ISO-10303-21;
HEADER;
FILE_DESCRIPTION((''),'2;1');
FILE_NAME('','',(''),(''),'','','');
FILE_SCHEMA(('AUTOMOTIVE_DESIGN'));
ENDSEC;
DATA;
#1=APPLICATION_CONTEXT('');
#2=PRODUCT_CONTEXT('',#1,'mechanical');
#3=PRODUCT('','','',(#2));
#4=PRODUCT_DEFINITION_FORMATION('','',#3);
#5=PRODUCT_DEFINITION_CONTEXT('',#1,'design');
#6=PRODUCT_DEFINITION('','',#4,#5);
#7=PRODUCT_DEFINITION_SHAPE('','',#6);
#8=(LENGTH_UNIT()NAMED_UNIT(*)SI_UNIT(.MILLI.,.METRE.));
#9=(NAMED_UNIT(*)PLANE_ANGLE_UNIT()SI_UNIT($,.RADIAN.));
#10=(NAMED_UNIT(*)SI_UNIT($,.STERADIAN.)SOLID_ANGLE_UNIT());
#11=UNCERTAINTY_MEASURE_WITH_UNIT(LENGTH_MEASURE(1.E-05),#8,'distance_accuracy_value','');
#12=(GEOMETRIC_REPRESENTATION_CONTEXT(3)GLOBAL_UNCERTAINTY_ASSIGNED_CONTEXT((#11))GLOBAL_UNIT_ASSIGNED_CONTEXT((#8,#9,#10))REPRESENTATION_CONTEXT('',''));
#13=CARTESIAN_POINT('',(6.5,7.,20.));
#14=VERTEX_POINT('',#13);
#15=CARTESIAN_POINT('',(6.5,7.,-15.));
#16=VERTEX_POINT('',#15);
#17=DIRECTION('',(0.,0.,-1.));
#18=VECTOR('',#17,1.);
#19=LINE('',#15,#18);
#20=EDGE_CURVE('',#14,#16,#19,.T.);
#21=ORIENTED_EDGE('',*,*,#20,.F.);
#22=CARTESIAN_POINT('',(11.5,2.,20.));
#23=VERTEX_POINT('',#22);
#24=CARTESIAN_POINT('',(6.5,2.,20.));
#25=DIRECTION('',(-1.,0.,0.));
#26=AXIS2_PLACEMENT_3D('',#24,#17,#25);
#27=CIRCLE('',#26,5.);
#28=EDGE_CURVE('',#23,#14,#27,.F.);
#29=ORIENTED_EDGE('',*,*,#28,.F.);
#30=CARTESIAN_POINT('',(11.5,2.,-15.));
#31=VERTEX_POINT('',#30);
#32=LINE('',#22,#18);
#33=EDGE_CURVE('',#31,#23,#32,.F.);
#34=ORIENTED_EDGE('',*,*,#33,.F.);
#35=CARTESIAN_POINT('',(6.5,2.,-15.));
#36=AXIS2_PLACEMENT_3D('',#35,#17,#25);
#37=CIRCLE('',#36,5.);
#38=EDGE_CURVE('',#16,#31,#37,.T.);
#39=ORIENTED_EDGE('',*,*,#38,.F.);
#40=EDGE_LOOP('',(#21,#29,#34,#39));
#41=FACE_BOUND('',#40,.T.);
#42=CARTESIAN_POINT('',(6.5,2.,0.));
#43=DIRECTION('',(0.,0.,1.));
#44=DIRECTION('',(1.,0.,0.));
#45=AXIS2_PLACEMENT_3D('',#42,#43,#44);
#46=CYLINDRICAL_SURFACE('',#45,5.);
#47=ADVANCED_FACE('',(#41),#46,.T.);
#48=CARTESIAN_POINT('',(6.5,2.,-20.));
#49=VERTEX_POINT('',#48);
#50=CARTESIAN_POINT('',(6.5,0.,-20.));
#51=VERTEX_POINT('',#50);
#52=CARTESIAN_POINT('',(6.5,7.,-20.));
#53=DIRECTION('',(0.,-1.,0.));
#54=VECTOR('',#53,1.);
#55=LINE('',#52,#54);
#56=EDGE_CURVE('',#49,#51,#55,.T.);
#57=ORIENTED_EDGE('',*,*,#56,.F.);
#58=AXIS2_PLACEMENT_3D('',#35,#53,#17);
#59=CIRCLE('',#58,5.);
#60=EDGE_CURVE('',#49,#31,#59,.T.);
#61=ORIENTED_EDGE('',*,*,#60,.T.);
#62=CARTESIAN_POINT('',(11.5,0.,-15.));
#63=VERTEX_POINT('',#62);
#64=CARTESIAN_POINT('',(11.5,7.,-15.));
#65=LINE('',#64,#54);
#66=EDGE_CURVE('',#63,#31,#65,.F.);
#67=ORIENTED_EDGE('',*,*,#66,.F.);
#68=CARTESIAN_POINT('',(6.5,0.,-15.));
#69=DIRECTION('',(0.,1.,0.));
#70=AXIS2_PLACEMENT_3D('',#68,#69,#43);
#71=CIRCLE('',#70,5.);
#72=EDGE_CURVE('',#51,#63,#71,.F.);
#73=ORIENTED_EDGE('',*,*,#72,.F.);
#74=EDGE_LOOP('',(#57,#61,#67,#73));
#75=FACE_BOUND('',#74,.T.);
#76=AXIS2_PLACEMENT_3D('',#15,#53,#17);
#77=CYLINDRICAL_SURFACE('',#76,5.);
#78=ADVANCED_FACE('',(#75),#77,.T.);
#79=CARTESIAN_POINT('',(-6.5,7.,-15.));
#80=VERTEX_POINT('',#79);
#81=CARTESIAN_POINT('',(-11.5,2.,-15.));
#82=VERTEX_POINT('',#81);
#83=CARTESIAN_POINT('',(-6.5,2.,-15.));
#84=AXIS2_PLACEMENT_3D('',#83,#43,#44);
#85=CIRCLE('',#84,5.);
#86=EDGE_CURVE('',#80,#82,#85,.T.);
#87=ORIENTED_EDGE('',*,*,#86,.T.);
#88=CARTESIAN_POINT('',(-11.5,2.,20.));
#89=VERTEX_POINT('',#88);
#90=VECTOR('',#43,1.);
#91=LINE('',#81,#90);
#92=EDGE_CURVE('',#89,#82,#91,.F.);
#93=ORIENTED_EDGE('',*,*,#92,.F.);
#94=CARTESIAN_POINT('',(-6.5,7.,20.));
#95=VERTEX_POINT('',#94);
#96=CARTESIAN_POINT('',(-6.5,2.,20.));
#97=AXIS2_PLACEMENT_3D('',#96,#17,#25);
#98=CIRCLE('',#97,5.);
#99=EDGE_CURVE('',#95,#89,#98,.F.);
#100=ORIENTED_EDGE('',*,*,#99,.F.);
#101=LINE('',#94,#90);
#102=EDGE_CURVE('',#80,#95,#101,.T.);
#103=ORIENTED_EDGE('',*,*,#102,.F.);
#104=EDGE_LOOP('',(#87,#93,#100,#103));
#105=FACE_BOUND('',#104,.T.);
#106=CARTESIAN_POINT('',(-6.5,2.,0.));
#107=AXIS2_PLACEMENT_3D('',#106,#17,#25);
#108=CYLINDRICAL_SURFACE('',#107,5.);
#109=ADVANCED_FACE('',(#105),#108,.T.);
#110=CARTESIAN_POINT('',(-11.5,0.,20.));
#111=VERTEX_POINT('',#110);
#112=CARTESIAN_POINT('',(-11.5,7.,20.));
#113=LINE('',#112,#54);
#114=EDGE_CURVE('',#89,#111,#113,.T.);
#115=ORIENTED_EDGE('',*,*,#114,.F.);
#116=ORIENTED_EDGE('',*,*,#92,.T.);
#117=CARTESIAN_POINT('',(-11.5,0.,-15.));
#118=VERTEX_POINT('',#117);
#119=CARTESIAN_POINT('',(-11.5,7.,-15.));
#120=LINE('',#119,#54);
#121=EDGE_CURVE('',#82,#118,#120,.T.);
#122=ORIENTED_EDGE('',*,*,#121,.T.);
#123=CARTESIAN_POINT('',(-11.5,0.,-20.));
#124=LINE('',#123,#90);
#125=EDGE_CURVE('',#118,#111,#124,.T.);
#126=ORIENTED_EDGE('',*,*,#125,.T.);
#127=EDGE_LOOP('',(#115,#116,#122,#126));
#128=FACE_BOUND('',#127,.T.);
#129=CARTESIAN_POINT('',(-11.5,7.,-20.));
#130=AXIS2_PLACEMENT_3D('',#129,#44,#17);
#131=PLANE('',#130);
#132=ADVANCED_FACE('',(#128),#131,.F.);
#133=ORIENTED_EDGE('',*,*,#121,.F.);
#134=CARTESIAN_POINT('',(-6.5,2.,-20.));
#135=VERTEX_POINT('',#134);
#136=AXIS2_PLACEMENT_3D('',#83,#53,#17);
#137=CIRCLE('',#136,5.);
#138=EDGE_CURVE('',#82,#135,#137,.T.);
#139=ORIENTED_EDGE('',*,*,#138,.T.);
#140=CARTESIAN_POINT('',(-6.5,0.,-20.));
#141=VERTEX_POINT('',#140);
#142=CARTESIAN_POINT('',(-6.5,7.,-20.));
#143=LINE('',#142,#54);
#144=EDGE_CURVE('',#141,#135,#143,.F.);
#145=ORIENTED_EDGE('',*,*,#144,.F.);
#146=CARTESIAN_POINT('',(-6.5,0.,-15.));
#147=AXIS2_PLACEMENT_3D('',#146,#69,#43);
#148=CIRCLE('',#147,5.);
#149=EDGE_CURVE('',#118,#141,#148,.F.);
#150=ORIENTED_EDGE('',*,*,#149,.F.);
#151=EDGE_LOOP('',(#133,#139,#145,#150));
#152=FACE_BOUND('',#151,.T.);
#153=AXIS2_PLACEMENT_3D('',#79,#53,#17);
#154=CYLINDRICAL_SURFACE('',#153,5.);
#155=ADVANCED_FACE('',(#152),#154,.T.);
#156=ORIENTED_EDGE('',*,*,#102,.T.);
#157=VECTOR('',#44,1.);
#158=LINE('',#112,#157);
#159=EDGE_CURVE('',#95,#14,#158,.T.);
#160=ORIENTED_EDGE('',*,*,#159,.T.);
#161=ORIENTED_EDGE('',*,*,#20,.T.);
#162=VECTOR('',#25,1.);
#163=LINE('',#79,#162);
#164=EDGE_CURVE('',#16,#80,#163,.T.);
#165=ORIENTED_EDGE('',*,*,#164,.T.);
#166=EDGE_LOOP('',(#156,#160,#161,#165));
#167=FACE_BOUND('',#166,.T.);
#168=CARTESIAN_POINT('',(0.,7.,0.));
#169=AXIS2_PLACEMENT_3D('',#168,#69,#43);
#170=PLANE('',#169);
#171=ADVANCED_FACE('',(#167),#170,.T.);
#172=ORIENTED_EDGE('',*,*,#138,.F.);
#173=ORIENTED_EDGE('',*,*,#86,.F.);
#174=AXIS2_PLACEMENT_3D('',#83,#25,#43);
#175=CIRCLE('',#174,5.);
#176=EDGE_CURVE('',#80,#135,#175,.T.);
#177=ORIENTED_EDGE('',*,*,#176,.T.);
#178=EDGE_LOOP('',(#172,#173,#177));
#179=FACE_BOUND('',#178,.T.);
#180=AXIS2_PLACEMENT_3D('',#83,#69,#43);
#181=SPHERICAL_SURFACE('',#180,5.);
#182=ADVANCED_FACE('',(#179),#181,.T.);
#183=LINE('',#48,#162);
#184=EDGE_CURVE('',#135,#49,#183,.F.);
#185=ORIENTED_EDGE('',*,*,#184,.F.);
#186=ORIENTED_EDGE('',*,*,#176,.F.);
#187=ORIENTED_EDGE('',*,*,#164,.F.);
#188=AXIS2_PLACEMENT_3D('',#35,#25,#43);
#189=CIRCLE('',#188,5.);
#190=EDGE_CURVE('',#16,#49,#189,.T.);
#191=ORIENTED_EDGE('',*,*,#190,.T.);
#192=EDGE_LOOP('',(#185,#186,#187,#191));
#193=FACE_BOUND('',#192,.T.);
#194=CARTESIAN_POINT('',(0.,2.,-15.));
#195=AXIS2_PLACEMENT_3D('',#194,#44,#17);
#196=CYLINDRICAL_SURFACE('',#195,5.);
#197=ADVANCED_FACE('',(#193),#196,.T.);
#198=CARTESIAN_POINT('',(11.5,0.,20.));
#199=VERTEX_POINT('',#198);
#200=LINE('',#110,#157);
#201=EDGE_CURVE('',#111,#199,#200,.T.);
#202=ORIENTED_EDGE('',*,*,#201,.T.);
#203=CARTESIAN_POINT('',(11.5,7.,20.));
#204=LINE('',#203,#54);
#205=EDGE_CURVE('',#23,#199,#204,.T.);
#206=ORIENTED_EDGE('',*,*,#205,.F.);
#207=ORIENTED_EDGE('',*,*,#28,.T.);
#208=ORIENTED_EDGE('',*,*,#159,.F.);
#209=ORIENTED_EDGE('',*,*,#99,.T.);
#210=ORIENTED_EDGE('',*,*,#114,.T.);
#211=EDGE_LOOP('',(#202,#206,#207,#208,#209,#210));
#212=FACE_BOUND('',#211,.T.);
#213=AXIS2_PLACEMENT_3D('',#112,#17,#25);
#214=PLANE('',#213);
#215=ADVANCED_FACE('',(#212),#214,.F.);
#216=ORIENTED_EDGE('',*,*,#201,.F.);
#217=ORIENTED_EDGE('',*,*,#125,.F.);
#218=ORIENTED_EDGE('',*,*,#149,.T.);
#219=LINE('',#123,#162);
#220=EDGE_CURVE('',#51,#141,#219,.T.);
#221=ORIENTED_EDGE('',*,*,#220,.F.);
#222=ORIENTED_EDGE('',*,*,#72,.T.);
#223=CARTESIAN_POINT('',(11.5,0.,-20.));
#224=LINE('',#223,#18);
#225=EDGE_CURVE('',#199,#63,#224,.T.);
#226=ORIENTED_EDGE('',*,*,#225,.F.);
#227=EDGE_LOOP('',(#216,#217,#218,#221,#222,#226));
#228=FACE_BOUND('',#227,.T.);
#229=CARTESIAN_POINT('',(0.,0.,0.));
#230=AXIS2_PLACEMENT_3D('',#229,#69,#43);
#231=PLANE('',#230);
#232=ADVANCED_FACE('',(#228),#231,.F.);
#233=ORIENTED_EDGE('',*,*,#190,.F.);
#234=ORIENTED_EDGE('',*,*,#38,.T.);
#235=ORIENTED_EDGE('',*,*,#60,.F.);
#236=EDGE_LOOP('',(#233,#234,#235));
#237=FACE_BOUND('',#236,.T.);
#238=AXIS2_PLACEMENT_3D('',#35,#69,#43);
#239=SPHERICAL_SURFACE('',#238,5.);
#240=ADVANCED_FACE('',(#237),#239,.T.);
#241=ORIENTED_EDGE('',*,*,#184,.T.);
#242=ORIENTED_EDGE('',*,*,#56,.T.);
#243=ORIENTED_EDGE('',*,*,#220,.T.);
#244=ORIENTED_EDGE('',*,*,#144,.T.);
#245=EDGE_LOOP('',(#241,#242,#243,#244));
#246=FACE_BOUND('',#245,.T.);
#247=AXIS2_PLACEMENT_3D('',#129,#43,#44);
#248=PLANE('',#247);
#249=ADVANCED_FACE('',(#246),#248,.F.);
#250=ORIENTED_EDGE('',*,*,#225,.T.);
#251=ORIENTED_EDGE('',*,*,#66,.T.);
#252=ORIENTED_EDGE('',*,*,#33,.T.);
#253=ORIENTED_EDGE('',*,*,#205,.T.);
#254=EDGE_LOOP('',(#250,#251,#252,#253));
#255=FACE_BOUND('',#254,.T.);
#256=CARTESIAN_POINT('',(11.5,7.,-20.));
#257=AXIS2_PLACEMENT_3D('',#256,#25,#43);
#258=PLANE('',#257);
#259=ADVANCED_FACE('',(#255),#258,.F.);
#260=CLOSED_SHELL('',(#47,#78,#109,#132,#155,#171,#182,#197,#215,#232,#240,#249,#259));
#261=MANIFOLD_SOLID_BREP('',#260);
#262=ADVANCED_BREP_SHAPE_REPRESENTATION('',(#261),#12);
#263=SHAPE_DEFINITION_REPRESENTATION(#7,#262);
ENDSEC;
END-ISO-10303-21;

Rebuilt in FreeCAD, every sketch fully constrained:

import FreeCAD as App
import Part
import Sketcher

V = App.Vector


def edges_at(feature, points):
    """Names of the edges that pass closest to the given points."""
    edges = feature.Shape.Edges
    near = lambda p: min(range(len(edges)), key=lambda i: edges[i].distToShape(Part.Vertex(*p))[0])
    return sorted({f"Edge{near(p) + 1}" for p in points})

doc = App.newDocument("Part")
params = doc.addObject("Spreadsheet::Sheet", "Params")
for row, (alias, value) in enumerate([
    ("sketch1_width", "23 mm"),
    ("sketch1_height", "40 mm"),
    ("pad1_length", "7 mm"),
    ("fillet_radius", "5 mm"),
    ("fillet2_radius", "5 mm"),
    ("fillet3_radius", "5 mm"),
], start=1):
    params.set(f"A{row}", alias)
    params.set(f"B{row}", "=" + value)
    params.setAlias(f"B{row}", alias)

body = doc.addObject("PartDesign::Body", "Body")

sketch1 = doc.addObject("Sketcher::SketchObject", "Sketch")
body.addObject(sketch1)
sketch1.AttachmentSupport = (doc.XZ_Plane, [""])
sketch1.MapMode = "FlatFace"
sketch1.addGeometry(Part.LineSegment(V(-11.5, -20, 0), V(-11.5, 20, 0)), False)
sketch1.addGeometry(Part.LineSegment(V(-11.5, 20, 0), V(11.5, 20, 0)), False)
sketch1.addGeometry(Part.LineSegment(V(11.5, 20, 0), V(11.5, -20, 0)), False)
sketch1.addGeometry(Part.LineSegment(V(11.5, -20, 0), V(-11.5, -20, 0)), False)
sketch1.addConstraint(Sketcher.Constraint("Coincident", 0, 2, 1, 1))
sketch1.addConstraint(Sketcher.Constraint("Coincident", 1, 2, 2, 1))
sketch1.addConstraint(Sketcher.Constraint("Coincident", 2, 2, 3, 1))
sketch1.addConstraint(Sketcher.Constraint("Coincident", 3, 2, 0, 1))
sketch1.addConstraint(Sketcher.Constraint("Vertical", 0))
sketch1.addConstraint(Sketcher.Constraint("Horizontal", 1))
sketch1.addConstraint(Sketcher.Constraint("Vertical", 2))
sketch1.addConstraint(Sketcher.Constraint("Horizontal", 3))
sketch1.addConstraint(Sketcher.Constraint("Symmetric", 0, 2, 2, 2, -1, 1))
sketch1.addConstraint(Sketcher.Constraint("DistanceX", 1, 1, 1, 2, 23.0))
sketch1.addConstraint(Sketcher.Constraint("DistanceY", 0, 1, 0, 2, 40.0))
sketch1.setExpression("Constraints[9]", "Params.sketch1_width")
sketch1.setExpression("Constraints[10]", "Params.sketch1_height")
pad1 = doc.addObject("PartDesign::Pad", "Pad")
body.addObject(pad1)
pad1.Profile = sketch1
pad1.setExpression("Length", "Params.pad1_length")
pad1.Reversed = True
doc.recompute()

fillet = doc.addObject("PartDesign::Fillet", "Fillet")
body.addObject(fillet)
fillet.Base = (pad1, edges_at(pad1, [(-11.5, 3.5, -20)]))
fillet.setExpression("Radius", "Params.fillet_radius")
doc.recompute()

fillet2 = doc.addObject("PartDesign::Fillet", "Fillet001")
body.addObject(fillet2)
fillet2.Base = (fillet, edges_at(fillet, [(11.5, 3.5, -20)]))
fillet2.setExpression("Radius", "Params.fillet2_radius")
doc.recompute()

fillet3 = doc.addObject("PartDesign::Fillet", "Fillet002")
body.addObject(fillet3)
fillet3.Base = (fillet2, edges_at(fillet2, [
    (-11.5, 7, 2.5),
    (-10.036, 7, -18.536),
    (0, 7, -20),
    (10.036, 7, -18.536),
    (11.5, 7, 2.5),
]))
fillet3.setExpression("Radius", "Params.fillet3_radius")

doc.recompute()
